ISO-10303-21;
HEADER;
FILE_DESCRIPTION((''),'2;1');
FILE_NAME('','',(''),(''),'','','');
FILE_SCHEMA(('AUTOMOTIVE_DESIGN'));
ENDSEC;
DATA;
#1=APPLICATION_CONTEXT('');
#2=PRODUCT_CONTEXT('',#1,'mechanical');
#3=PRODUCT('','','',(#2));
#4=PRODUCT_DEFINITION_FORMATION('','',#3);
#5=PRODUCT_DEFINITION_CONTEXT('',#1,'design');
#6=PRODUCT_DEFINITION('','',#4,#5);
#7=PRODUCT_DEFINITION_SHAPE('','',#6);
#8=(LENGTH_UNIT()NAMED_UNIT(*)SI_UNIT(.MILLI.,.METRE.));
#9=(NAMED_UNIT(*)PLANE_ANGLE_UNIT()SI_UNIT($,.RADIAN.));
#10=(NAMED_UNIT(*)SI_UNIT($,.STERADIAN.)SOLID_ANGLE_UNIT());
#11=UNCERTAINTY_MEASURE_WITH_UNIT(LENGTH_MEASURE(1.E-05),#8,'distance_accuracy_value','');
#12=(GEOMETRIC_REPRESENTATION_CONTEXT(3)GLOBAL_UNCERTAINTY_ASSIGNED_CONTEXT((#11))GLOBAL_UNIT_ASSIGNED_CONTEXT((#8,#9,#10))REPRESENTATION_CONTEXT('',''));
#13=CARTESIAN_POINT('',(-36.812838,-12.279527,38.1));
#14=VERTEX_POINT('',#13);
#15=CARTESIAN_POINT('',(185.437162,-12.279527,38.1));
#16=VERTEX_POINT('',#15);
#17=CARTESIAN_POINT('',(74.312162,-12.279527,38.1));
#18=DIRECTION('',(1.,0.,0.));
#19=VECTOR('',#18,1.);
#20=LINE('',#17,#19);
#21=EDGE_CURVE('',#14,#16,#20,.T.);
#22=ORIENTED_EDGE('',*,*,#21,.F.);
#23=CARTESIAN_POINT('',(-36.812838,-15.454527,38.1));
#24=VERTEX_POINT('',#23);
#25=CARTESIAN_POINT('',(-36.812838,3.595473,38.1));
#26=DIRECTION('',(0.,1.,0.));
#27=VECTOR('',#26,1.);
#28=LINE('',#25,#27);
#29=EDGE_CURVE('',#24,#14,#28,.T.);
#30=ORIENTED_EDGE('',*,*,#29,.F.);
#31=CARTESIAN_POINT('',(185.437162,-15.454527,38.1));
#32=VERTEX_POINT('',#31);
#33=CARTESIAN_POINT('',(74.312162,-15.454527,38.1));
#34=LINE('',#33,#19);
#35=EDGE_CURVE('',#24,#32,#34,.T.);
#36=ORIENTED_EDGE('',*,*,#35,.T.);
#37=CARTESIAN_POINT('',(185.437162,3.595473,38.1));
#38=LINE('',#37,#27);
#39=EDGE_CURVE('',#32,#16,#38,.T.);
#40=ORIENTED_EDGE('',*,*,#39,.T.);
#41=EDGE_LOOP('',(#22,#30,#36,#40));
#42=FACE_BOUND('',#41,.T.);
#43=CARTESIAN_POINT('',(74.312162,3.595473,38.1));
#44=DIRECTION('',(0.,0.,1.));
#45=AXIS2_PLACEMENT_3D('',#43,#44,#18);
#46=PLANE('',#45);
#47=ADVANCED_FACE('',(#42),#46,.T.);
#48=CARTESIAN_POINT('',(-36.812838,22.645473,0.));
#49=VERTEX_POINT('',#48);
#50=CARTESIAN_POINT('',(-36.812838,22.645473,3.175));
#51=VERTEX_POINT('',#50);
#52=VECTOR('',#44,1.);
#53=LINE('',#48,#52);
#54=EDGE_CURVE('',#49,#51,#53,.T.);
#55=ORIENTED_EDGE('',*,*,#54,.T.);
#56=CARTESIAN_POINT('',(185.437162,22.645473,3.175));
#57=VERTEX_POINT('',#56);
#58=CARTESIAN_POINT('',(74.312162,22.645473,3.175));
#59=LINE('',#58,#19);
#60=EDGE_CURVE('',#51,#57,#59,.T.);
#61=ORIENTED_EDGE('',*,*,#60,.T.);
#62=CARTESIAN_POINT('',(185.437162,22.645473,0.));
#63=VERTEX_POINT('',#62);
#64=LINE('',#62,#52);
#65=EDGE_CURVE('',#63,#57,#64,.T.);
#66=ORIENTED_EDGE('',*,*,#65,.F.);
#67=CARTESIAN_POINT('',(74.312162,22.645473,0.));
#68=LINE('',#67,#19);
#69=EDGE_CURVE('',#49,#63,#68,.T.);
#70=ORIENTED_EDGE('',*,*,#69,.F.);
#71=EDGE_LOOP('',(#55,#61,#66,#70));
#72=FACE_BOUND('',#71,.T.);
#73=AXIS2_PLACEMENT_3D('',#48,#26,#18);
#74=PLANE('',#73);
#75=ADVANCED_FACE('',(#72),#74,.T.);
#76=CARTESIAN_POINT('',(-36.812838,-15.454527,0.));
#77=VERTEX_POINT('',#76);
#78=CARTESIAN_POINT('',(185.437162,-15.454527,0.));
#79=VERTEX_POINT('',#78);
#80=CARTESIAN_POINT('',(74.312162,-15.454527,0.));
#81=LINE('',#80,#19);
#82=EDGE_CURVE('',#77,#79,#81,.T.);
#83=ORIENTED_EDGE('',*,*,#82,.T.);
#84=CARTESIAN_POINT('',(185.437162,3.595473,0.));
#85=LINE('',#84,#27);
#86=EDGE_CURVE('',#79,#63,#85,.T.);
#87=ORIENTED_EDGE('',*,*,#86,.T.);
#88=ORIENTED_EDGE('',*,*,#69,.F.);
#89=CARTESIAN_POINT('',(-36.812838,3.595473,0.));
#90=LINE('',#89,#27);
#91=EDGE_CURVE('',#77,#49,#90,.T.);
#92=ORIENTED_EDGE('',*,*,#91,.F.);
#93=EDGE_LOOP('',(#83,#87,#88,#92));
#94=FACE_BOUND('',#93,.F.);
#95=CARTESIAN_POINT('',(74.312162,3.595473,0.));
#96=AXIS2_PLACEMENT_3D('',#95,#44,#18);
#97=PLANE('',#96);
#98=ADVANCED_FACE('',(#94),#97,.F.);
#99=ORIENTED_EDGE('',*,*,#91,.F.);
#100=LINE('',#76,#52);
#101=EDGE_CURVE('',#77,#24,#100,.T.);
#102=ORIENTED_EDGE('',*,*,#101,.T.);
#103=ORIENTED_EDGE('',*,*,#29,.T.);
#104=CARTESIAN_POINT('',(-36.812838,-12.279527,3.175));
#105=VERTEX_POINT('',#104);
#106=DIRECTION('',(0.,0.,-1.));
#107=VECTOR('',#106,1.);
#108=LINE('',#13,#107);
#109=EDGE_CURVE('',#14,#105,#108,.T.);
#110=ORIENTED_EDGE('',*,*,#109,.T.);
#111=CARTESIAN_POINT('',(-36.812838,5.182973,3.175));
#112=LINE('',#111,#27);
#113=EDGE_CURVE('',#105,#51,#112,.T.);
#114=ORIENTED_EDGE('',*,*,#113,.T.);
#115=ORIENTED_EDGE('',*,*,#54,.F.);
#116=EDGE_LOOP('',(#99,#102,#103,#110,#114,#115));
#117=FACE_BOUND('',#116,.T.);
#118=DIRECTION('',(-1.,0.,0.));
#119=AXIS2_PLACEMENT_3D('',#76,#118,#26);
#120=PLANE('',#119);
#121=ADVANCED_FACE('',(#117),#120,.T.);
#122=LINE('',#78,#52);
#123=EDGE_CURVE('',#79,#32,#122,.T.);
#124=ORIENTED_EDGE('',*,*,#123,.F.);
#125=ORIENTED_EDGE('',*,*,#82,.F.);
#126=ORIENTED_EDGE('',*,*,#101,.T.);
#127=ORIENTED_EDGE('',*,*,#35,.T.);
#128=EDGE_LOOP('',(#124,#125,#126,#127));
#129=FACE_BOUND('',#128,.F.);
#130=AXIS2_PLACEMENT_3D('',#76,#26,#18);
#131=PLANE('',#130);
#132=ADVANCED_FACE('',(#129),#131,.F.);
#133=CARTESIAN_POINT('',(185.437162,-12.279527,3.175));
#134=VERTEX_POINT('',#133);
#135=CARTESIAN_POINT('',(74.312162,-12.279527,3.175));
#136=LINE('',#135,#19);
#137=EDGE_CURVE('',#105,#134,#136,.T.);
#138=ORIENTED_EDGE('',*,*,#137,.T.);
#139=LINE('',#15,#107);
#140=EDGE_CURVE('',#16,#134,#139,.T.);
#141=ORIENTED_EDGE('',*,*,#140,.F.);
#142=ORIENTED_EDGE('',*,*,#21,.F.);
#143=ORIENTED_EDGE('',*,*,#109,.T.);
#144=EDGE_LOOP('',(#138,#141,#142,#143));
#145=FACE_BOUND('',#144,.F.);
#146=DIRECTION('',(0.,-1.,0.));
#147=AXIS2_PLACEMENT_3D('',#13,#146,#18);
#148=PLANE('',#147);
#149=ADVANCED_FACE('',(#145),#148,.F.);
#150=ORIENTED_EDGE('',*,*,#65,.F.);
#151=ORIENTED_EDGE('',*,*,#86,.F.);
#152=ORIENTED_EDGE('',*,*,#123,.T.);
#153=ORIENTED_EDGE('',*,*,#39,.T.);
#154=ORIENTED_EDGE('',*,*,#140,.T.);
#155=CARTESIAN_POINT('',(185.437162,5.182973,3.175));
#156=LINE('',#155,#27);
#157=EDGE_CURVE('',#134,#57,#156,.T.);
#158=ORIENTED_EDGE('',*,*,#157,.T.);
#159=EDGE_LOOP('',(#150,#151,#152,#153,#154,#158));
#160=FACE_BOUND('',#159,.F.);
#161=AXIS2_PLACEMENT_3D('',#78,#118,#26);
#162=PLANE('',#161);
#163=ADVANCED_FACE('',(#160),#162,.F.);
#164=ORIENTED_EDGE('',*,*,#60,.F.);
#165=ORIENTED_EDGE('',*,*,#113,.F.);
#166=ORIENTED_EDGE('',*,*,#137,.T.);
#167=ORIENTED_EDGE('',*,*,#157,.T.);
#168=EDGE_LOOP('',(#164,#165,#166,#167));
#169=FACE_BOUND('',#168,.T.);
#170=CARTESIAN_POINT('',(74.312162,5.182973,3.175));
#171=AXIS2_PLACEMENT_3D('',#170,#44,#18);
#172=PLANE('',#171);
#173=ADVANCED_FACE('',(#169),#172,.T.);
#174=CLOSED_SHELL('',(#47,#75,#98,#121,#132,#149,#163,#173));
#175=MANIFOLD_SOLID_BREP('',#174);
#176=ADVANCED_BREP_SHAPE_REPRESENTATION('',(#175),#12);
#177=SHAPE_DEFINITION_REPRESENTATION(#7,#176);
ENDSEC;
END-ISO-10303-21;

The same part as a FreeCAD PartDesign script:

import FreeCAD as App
import Part
import Sketcher
from FreeCAD import Vector
Q = App.Units.Quantity

doc = App.newDocument("Part")
body = doc.addObject("PartDesign::Body", "Body")

# Sketch on XY plane
sketch1 = body.newObject("Sketcher::SketchObject", "Sketch")
sketch1.AttachmentSupport = (doc.getObject("XY_Plane"), [""])
sketch1.MapMode = "FlatFace"
sketch1.addGeometry([
    Part.LineSegment(Vector(-37, 23, 0), Vector(-37, -15, 0)),
    Part.LineSegment(Vector(-37, -15, 0), Vector(185, -15, 0)),
    Part.LineSegment(Vector(185, -15, 0), Vector(185, 23, 0)),
    Part.LineSegment(Vector(185, 23, 0), Vector(-37, 23, 0)),
], False)
sketch1.addConstraint([
    Sketcher.Constraint("Coincident", 0, 2, 1, 1),
    Sketcher.Constraint("Coincident", 1, 2, 2, 1),
    Sketcher.Constraint("Coincident", 2, 2, 3, 1),
    Sketcher.Constraint("Coincident", 3, 2, 0, 1),
    Sketcher.Constraint("Vertical", 0),
    Sketcher.Constraint("Horizontal", 1),
    Sketcher.Constraint("Vertical", 2),
    Sketcher.Constraint("Horizontal", 3),
    Sketcher.Constraint("DistanceY", 0, 2, 0, 1, Q("1.5 in")),
    Sketcher.Constraint("DistanceX", 1, 1, 1, 2, Q("8.75 in")),
    Sketcher.Constraint("DistanceX", 0, 2, -1, 1, Q("36.812838 mm")),
    Sketcher.Constraint("DistanceY", 0, 2, -1, 1, Q("15.454527 mm")),
])
pad1 = body.newObject("PartDesign::Pad", "Pad")
pad1.Profile = sketch1
pad1.Length = Q("1.5 in")

# Sketch on XY plane
sketch2 = body.newObject("Sketcher::SketchObject", "Sketch001")
sketch2.AttachmentSupport = (doc.getObject("XY_Plane"), [""])
sketch2.MapMode = "FlatFace"
sketch2.AttachmentOffset = App.Placement(Vector(0, 0, 1.5 * 25.4), App.Rotation())
sketch2.addGeometry([
    Part.LineSegment(Vector(-37, 23, 0), Vector(-37, -12, 0)),
    Part.LineSegment(Vector(-37, -12, 0), Vector(185, -12, 0)),
    Part.LineSegment(Vector(185, -12, 0), Vector(185, 23, 0)),
    Part.LineSegment(Vector(185, 23, 0), Vector(-37, 23, 0)),
], False)
sketch2.addConstraint([
    Sketcher.Constraint("Coincident", 0, 2, 1, 1),
    Sketcher.Constraint("Coincident", 1, 2, 2, 1),
    Sketcher.Constraint("Coincident", 2, 2, 3, 1),
    Sketcher.Constraint("Coincident", 3, 2, 0, 1),
    Sketcher.Constraint("Vertical", 0),
    Sketcher.Constraint("Horizontal", 1),
    Sketcher.Constraint("Vertical", 2),
    Sketcher.Constraint("Horizontal", 3),
    Sketcher.Constraint("DistanceX", 1, 1, 1, 2, Q("8.75 in")),
    Sketcher.Constraint("DistanceY", 0, 2, 0, 1, Q("1.375 in")),
    Sketcher.Constraint("DistanceX", 0, 2, -1, 1, Q("36.812838 mm")),
    Sketcher.Constraint("DistanceY", 0, 2, -1, 1, Q("12.279527 mm")),
])
pocket1 = body.newObject("PartDesign::Pocket", "Pocket")
pocket1.Profile = sketch2
pocket1.Length = Q("1.375 in")

doc.recompute()
